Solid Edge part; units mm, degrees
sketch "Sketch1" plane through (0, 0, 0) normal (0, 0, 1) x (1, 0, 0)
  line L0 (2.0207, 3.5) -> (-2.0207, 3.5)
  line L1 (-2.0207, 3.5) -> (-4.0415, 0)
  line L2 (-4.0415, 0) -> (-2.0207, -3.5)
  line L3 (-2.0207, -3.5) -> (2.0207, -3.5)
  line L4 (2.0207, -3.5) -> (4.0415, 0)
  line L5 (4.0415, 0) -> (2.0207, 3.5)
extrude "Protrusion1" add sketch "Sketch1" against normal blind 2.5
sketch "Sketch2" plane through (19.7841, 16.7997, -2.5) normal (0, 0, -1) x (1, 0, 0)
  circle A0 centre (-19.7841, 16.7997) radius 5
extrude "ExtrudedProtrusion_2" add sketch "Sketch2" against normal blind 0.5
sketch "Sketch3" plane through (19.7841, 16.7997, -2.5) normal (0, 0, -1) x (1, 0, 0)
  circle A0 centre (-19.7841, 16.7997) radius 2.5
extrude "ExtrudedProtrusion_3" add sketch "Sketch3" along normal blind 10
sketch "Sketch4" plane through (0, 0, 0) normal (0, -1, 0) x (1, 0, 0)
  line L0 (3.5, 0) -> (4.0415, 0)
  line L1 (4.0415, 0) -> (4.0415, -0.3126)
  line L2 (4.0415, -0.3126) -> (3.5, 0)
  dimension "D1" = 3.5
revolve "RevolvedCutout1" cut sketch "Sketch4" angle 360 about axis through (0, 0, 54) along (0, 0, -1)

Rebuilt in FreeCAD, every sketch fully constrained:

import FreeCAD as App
import Part
import Sketcher
Q = App.Units.Quantity


def add_polygon(sketch, points):
    """Adds a closed chain of lines whose ends are joined by coincident constraints."""
    first, n = sketch.GeometryCount, len(points)
    for a, b in zip(points, points[1:] + points[:1]):
        sketch.addGeometry(Part.LineSegment(App.Vector(*a, 0), App.Vector(*b, 0)), False)
    for i in range(n):
        sketch.addConstraint(Sketcher.Constraint("Coincident", first + i, 2, first + (i + 1) % n, 1))

doc = App.newDocument("Part")
body = doc.addObject("PartDesign::Body", "Body")

# Sketch on XY plane
sketch1 = doc.addObject("Sketcher::SketchObject", "Sketch")
body.addObject(sketch1)
sketch1.AttachmentSupport = (doc.XY_Plane, [""])
sketch1.MapMode = "FlatFace"
add_polygon(sketch1, [(4, 0), (2, 3.5), (-2, 3.5), (-4, 0), (-2, -3.5), (2, -3.5)])  # lines 0-5
sketch1.addConstraint(Sketcher.Constraint("Horizontal", 1))
sketch1.addConstraint(Sketcher.Constraint("Horizontal", 4))
sketch1.addConstraint(Sketcher.Constraint("Symmetric", 0, 2, 3, 2, -1, 1))
sketch1.addConstraint(Sketcher.Constraint("Symmetric", 2, 2, 5, 2, -1, 1))
sketch1.addConstraint(Sketcher.Constraint("PointOnObject", 2, 2, -1))
sketch1.addConstraint(Sketcher.Constraint("Parallel", 2, 5))
sketch1.addConstraint(Sketcher.Constraint("Vertical", 1, 2, 3, 2))
sketch1.addConstraint(Sketcher.Constraint("Angle", 0, Q("120.001 deg")))
sketch1.addConstraint(Sketcher.Constraint("DistanceY", 3, 2, 1, 2, Q("7 mm")))
sketch1.addConstraint(Sketcher.Constraint("DistanceX", 1, 2, 1, 1, Q("4.0414 mm")))
pad1 = doc.addObject("PartDesign::Pad", "Pad")
body.addObject(pad1)
pad1.Profile = sketch1
pad1.Length = 2.5
pad1.Reversed = True

# Sketch on XY plane
sketch2 = doc.addObject("Sketcher::SketchObject", "Sketch001")
body.addObject(sketch2)
sketch2.AttachmentSupport = (doc.XY_Plane, [""])
sketch2.MapMode = "FlatFace"
sketch2.AttachmentOffset = App.Placement(App.Vector(0, 0, -2.5), App.Rotation())
sketch2.addGeometry(Part.Circle(App.Vector(0, 0, 0), App.Vector(0, 0, 1), 5), False)
sketch2.addConstraint(Sketcher.Constraint("Coincident", 0, 3, -1, 1))
sketch2.addConstraint(Sketcher.Constraint("Diameter", 0, Q("10 mm")))
pad2 = doc.addObject("PartDesign::Pad", "Pad001")
body.addObject(pad2)
pad2.Profile = sketch2
pad2.Length = 0.5

# Sketch on XY plane
sketch3 = doc.addObject("Sketcher::SketchObject", "Sketch002")
body.addObject(sketch3)
sketch3.AttachmentSupport = (doc.XY_Plane, [""])
sketch3.MapMode = "FlatFace"
sketch3.AttachmentOffset = App.Placement(App.Vector(0, 0, -2.5), App.Rotation())
sketch3.addGeometry(Part.Circle(App.Vector(0, 0, 0), App.Vector(0, 0, 1), 2.5), False)
sketch3.addConstraint(Sketcher.Constraint("Coincident", 0, 3, -1, 1))
sketch3.addConstraint(Sketcher.Constraint("Diameter", 0, Q("5 mm")))
pad3 = doc.addObject("PartDesign::Pad", "Pad002")
body.addObject(pad3)
pad3.Profile = sketch3
pad3.Length = 10
pad3.Reversed = True

# Sketch on XZ plane
sketch4 = doc.addObject("Sketcher::SketchObject", "Sketch003")
body.addObject(sketch4)
sketch4.AttachmentSupport = (doc.XZ_Plane, [""])
sketch4.MapMode = "FlatFace"
add_polygon(sketch4, [(4.04, 0), (3.5, 0), (4.04, -0.31)])  # lines 0-2
sketch4.addConstraint(Sketcher.Constraint("Horizontal", 0))
sketch4.addConstraint(Sketcher.Constraint("Vertical", 2))
sketch4.addConstraint(Sketcher.Constraint("PointOnObject", 0, 2, -1))
sketch4.addConstraint(Sketcher.Constraint("DistanceX", -1, 1, 0, 2, Q("3.5 mm")))
sketch4.addConstraint(Sketcher.Constraint("DistanceX", 0, 2, 0, 1, Q("0.5415 mm")))
sketch4.addConstraint(Sketcher.Constraint("DistanceY", 2, 1, 2, 2, Q("0.3126 mm")))
groove = doc.addObject("PartDesign::Groove", "Groove")
body.addObject(groove)
groove.Profile = sketch4
groove.ReferenceAxis = (sketch4, ["V_Axis"])
groove.Angle = 360

doc.recompute()
